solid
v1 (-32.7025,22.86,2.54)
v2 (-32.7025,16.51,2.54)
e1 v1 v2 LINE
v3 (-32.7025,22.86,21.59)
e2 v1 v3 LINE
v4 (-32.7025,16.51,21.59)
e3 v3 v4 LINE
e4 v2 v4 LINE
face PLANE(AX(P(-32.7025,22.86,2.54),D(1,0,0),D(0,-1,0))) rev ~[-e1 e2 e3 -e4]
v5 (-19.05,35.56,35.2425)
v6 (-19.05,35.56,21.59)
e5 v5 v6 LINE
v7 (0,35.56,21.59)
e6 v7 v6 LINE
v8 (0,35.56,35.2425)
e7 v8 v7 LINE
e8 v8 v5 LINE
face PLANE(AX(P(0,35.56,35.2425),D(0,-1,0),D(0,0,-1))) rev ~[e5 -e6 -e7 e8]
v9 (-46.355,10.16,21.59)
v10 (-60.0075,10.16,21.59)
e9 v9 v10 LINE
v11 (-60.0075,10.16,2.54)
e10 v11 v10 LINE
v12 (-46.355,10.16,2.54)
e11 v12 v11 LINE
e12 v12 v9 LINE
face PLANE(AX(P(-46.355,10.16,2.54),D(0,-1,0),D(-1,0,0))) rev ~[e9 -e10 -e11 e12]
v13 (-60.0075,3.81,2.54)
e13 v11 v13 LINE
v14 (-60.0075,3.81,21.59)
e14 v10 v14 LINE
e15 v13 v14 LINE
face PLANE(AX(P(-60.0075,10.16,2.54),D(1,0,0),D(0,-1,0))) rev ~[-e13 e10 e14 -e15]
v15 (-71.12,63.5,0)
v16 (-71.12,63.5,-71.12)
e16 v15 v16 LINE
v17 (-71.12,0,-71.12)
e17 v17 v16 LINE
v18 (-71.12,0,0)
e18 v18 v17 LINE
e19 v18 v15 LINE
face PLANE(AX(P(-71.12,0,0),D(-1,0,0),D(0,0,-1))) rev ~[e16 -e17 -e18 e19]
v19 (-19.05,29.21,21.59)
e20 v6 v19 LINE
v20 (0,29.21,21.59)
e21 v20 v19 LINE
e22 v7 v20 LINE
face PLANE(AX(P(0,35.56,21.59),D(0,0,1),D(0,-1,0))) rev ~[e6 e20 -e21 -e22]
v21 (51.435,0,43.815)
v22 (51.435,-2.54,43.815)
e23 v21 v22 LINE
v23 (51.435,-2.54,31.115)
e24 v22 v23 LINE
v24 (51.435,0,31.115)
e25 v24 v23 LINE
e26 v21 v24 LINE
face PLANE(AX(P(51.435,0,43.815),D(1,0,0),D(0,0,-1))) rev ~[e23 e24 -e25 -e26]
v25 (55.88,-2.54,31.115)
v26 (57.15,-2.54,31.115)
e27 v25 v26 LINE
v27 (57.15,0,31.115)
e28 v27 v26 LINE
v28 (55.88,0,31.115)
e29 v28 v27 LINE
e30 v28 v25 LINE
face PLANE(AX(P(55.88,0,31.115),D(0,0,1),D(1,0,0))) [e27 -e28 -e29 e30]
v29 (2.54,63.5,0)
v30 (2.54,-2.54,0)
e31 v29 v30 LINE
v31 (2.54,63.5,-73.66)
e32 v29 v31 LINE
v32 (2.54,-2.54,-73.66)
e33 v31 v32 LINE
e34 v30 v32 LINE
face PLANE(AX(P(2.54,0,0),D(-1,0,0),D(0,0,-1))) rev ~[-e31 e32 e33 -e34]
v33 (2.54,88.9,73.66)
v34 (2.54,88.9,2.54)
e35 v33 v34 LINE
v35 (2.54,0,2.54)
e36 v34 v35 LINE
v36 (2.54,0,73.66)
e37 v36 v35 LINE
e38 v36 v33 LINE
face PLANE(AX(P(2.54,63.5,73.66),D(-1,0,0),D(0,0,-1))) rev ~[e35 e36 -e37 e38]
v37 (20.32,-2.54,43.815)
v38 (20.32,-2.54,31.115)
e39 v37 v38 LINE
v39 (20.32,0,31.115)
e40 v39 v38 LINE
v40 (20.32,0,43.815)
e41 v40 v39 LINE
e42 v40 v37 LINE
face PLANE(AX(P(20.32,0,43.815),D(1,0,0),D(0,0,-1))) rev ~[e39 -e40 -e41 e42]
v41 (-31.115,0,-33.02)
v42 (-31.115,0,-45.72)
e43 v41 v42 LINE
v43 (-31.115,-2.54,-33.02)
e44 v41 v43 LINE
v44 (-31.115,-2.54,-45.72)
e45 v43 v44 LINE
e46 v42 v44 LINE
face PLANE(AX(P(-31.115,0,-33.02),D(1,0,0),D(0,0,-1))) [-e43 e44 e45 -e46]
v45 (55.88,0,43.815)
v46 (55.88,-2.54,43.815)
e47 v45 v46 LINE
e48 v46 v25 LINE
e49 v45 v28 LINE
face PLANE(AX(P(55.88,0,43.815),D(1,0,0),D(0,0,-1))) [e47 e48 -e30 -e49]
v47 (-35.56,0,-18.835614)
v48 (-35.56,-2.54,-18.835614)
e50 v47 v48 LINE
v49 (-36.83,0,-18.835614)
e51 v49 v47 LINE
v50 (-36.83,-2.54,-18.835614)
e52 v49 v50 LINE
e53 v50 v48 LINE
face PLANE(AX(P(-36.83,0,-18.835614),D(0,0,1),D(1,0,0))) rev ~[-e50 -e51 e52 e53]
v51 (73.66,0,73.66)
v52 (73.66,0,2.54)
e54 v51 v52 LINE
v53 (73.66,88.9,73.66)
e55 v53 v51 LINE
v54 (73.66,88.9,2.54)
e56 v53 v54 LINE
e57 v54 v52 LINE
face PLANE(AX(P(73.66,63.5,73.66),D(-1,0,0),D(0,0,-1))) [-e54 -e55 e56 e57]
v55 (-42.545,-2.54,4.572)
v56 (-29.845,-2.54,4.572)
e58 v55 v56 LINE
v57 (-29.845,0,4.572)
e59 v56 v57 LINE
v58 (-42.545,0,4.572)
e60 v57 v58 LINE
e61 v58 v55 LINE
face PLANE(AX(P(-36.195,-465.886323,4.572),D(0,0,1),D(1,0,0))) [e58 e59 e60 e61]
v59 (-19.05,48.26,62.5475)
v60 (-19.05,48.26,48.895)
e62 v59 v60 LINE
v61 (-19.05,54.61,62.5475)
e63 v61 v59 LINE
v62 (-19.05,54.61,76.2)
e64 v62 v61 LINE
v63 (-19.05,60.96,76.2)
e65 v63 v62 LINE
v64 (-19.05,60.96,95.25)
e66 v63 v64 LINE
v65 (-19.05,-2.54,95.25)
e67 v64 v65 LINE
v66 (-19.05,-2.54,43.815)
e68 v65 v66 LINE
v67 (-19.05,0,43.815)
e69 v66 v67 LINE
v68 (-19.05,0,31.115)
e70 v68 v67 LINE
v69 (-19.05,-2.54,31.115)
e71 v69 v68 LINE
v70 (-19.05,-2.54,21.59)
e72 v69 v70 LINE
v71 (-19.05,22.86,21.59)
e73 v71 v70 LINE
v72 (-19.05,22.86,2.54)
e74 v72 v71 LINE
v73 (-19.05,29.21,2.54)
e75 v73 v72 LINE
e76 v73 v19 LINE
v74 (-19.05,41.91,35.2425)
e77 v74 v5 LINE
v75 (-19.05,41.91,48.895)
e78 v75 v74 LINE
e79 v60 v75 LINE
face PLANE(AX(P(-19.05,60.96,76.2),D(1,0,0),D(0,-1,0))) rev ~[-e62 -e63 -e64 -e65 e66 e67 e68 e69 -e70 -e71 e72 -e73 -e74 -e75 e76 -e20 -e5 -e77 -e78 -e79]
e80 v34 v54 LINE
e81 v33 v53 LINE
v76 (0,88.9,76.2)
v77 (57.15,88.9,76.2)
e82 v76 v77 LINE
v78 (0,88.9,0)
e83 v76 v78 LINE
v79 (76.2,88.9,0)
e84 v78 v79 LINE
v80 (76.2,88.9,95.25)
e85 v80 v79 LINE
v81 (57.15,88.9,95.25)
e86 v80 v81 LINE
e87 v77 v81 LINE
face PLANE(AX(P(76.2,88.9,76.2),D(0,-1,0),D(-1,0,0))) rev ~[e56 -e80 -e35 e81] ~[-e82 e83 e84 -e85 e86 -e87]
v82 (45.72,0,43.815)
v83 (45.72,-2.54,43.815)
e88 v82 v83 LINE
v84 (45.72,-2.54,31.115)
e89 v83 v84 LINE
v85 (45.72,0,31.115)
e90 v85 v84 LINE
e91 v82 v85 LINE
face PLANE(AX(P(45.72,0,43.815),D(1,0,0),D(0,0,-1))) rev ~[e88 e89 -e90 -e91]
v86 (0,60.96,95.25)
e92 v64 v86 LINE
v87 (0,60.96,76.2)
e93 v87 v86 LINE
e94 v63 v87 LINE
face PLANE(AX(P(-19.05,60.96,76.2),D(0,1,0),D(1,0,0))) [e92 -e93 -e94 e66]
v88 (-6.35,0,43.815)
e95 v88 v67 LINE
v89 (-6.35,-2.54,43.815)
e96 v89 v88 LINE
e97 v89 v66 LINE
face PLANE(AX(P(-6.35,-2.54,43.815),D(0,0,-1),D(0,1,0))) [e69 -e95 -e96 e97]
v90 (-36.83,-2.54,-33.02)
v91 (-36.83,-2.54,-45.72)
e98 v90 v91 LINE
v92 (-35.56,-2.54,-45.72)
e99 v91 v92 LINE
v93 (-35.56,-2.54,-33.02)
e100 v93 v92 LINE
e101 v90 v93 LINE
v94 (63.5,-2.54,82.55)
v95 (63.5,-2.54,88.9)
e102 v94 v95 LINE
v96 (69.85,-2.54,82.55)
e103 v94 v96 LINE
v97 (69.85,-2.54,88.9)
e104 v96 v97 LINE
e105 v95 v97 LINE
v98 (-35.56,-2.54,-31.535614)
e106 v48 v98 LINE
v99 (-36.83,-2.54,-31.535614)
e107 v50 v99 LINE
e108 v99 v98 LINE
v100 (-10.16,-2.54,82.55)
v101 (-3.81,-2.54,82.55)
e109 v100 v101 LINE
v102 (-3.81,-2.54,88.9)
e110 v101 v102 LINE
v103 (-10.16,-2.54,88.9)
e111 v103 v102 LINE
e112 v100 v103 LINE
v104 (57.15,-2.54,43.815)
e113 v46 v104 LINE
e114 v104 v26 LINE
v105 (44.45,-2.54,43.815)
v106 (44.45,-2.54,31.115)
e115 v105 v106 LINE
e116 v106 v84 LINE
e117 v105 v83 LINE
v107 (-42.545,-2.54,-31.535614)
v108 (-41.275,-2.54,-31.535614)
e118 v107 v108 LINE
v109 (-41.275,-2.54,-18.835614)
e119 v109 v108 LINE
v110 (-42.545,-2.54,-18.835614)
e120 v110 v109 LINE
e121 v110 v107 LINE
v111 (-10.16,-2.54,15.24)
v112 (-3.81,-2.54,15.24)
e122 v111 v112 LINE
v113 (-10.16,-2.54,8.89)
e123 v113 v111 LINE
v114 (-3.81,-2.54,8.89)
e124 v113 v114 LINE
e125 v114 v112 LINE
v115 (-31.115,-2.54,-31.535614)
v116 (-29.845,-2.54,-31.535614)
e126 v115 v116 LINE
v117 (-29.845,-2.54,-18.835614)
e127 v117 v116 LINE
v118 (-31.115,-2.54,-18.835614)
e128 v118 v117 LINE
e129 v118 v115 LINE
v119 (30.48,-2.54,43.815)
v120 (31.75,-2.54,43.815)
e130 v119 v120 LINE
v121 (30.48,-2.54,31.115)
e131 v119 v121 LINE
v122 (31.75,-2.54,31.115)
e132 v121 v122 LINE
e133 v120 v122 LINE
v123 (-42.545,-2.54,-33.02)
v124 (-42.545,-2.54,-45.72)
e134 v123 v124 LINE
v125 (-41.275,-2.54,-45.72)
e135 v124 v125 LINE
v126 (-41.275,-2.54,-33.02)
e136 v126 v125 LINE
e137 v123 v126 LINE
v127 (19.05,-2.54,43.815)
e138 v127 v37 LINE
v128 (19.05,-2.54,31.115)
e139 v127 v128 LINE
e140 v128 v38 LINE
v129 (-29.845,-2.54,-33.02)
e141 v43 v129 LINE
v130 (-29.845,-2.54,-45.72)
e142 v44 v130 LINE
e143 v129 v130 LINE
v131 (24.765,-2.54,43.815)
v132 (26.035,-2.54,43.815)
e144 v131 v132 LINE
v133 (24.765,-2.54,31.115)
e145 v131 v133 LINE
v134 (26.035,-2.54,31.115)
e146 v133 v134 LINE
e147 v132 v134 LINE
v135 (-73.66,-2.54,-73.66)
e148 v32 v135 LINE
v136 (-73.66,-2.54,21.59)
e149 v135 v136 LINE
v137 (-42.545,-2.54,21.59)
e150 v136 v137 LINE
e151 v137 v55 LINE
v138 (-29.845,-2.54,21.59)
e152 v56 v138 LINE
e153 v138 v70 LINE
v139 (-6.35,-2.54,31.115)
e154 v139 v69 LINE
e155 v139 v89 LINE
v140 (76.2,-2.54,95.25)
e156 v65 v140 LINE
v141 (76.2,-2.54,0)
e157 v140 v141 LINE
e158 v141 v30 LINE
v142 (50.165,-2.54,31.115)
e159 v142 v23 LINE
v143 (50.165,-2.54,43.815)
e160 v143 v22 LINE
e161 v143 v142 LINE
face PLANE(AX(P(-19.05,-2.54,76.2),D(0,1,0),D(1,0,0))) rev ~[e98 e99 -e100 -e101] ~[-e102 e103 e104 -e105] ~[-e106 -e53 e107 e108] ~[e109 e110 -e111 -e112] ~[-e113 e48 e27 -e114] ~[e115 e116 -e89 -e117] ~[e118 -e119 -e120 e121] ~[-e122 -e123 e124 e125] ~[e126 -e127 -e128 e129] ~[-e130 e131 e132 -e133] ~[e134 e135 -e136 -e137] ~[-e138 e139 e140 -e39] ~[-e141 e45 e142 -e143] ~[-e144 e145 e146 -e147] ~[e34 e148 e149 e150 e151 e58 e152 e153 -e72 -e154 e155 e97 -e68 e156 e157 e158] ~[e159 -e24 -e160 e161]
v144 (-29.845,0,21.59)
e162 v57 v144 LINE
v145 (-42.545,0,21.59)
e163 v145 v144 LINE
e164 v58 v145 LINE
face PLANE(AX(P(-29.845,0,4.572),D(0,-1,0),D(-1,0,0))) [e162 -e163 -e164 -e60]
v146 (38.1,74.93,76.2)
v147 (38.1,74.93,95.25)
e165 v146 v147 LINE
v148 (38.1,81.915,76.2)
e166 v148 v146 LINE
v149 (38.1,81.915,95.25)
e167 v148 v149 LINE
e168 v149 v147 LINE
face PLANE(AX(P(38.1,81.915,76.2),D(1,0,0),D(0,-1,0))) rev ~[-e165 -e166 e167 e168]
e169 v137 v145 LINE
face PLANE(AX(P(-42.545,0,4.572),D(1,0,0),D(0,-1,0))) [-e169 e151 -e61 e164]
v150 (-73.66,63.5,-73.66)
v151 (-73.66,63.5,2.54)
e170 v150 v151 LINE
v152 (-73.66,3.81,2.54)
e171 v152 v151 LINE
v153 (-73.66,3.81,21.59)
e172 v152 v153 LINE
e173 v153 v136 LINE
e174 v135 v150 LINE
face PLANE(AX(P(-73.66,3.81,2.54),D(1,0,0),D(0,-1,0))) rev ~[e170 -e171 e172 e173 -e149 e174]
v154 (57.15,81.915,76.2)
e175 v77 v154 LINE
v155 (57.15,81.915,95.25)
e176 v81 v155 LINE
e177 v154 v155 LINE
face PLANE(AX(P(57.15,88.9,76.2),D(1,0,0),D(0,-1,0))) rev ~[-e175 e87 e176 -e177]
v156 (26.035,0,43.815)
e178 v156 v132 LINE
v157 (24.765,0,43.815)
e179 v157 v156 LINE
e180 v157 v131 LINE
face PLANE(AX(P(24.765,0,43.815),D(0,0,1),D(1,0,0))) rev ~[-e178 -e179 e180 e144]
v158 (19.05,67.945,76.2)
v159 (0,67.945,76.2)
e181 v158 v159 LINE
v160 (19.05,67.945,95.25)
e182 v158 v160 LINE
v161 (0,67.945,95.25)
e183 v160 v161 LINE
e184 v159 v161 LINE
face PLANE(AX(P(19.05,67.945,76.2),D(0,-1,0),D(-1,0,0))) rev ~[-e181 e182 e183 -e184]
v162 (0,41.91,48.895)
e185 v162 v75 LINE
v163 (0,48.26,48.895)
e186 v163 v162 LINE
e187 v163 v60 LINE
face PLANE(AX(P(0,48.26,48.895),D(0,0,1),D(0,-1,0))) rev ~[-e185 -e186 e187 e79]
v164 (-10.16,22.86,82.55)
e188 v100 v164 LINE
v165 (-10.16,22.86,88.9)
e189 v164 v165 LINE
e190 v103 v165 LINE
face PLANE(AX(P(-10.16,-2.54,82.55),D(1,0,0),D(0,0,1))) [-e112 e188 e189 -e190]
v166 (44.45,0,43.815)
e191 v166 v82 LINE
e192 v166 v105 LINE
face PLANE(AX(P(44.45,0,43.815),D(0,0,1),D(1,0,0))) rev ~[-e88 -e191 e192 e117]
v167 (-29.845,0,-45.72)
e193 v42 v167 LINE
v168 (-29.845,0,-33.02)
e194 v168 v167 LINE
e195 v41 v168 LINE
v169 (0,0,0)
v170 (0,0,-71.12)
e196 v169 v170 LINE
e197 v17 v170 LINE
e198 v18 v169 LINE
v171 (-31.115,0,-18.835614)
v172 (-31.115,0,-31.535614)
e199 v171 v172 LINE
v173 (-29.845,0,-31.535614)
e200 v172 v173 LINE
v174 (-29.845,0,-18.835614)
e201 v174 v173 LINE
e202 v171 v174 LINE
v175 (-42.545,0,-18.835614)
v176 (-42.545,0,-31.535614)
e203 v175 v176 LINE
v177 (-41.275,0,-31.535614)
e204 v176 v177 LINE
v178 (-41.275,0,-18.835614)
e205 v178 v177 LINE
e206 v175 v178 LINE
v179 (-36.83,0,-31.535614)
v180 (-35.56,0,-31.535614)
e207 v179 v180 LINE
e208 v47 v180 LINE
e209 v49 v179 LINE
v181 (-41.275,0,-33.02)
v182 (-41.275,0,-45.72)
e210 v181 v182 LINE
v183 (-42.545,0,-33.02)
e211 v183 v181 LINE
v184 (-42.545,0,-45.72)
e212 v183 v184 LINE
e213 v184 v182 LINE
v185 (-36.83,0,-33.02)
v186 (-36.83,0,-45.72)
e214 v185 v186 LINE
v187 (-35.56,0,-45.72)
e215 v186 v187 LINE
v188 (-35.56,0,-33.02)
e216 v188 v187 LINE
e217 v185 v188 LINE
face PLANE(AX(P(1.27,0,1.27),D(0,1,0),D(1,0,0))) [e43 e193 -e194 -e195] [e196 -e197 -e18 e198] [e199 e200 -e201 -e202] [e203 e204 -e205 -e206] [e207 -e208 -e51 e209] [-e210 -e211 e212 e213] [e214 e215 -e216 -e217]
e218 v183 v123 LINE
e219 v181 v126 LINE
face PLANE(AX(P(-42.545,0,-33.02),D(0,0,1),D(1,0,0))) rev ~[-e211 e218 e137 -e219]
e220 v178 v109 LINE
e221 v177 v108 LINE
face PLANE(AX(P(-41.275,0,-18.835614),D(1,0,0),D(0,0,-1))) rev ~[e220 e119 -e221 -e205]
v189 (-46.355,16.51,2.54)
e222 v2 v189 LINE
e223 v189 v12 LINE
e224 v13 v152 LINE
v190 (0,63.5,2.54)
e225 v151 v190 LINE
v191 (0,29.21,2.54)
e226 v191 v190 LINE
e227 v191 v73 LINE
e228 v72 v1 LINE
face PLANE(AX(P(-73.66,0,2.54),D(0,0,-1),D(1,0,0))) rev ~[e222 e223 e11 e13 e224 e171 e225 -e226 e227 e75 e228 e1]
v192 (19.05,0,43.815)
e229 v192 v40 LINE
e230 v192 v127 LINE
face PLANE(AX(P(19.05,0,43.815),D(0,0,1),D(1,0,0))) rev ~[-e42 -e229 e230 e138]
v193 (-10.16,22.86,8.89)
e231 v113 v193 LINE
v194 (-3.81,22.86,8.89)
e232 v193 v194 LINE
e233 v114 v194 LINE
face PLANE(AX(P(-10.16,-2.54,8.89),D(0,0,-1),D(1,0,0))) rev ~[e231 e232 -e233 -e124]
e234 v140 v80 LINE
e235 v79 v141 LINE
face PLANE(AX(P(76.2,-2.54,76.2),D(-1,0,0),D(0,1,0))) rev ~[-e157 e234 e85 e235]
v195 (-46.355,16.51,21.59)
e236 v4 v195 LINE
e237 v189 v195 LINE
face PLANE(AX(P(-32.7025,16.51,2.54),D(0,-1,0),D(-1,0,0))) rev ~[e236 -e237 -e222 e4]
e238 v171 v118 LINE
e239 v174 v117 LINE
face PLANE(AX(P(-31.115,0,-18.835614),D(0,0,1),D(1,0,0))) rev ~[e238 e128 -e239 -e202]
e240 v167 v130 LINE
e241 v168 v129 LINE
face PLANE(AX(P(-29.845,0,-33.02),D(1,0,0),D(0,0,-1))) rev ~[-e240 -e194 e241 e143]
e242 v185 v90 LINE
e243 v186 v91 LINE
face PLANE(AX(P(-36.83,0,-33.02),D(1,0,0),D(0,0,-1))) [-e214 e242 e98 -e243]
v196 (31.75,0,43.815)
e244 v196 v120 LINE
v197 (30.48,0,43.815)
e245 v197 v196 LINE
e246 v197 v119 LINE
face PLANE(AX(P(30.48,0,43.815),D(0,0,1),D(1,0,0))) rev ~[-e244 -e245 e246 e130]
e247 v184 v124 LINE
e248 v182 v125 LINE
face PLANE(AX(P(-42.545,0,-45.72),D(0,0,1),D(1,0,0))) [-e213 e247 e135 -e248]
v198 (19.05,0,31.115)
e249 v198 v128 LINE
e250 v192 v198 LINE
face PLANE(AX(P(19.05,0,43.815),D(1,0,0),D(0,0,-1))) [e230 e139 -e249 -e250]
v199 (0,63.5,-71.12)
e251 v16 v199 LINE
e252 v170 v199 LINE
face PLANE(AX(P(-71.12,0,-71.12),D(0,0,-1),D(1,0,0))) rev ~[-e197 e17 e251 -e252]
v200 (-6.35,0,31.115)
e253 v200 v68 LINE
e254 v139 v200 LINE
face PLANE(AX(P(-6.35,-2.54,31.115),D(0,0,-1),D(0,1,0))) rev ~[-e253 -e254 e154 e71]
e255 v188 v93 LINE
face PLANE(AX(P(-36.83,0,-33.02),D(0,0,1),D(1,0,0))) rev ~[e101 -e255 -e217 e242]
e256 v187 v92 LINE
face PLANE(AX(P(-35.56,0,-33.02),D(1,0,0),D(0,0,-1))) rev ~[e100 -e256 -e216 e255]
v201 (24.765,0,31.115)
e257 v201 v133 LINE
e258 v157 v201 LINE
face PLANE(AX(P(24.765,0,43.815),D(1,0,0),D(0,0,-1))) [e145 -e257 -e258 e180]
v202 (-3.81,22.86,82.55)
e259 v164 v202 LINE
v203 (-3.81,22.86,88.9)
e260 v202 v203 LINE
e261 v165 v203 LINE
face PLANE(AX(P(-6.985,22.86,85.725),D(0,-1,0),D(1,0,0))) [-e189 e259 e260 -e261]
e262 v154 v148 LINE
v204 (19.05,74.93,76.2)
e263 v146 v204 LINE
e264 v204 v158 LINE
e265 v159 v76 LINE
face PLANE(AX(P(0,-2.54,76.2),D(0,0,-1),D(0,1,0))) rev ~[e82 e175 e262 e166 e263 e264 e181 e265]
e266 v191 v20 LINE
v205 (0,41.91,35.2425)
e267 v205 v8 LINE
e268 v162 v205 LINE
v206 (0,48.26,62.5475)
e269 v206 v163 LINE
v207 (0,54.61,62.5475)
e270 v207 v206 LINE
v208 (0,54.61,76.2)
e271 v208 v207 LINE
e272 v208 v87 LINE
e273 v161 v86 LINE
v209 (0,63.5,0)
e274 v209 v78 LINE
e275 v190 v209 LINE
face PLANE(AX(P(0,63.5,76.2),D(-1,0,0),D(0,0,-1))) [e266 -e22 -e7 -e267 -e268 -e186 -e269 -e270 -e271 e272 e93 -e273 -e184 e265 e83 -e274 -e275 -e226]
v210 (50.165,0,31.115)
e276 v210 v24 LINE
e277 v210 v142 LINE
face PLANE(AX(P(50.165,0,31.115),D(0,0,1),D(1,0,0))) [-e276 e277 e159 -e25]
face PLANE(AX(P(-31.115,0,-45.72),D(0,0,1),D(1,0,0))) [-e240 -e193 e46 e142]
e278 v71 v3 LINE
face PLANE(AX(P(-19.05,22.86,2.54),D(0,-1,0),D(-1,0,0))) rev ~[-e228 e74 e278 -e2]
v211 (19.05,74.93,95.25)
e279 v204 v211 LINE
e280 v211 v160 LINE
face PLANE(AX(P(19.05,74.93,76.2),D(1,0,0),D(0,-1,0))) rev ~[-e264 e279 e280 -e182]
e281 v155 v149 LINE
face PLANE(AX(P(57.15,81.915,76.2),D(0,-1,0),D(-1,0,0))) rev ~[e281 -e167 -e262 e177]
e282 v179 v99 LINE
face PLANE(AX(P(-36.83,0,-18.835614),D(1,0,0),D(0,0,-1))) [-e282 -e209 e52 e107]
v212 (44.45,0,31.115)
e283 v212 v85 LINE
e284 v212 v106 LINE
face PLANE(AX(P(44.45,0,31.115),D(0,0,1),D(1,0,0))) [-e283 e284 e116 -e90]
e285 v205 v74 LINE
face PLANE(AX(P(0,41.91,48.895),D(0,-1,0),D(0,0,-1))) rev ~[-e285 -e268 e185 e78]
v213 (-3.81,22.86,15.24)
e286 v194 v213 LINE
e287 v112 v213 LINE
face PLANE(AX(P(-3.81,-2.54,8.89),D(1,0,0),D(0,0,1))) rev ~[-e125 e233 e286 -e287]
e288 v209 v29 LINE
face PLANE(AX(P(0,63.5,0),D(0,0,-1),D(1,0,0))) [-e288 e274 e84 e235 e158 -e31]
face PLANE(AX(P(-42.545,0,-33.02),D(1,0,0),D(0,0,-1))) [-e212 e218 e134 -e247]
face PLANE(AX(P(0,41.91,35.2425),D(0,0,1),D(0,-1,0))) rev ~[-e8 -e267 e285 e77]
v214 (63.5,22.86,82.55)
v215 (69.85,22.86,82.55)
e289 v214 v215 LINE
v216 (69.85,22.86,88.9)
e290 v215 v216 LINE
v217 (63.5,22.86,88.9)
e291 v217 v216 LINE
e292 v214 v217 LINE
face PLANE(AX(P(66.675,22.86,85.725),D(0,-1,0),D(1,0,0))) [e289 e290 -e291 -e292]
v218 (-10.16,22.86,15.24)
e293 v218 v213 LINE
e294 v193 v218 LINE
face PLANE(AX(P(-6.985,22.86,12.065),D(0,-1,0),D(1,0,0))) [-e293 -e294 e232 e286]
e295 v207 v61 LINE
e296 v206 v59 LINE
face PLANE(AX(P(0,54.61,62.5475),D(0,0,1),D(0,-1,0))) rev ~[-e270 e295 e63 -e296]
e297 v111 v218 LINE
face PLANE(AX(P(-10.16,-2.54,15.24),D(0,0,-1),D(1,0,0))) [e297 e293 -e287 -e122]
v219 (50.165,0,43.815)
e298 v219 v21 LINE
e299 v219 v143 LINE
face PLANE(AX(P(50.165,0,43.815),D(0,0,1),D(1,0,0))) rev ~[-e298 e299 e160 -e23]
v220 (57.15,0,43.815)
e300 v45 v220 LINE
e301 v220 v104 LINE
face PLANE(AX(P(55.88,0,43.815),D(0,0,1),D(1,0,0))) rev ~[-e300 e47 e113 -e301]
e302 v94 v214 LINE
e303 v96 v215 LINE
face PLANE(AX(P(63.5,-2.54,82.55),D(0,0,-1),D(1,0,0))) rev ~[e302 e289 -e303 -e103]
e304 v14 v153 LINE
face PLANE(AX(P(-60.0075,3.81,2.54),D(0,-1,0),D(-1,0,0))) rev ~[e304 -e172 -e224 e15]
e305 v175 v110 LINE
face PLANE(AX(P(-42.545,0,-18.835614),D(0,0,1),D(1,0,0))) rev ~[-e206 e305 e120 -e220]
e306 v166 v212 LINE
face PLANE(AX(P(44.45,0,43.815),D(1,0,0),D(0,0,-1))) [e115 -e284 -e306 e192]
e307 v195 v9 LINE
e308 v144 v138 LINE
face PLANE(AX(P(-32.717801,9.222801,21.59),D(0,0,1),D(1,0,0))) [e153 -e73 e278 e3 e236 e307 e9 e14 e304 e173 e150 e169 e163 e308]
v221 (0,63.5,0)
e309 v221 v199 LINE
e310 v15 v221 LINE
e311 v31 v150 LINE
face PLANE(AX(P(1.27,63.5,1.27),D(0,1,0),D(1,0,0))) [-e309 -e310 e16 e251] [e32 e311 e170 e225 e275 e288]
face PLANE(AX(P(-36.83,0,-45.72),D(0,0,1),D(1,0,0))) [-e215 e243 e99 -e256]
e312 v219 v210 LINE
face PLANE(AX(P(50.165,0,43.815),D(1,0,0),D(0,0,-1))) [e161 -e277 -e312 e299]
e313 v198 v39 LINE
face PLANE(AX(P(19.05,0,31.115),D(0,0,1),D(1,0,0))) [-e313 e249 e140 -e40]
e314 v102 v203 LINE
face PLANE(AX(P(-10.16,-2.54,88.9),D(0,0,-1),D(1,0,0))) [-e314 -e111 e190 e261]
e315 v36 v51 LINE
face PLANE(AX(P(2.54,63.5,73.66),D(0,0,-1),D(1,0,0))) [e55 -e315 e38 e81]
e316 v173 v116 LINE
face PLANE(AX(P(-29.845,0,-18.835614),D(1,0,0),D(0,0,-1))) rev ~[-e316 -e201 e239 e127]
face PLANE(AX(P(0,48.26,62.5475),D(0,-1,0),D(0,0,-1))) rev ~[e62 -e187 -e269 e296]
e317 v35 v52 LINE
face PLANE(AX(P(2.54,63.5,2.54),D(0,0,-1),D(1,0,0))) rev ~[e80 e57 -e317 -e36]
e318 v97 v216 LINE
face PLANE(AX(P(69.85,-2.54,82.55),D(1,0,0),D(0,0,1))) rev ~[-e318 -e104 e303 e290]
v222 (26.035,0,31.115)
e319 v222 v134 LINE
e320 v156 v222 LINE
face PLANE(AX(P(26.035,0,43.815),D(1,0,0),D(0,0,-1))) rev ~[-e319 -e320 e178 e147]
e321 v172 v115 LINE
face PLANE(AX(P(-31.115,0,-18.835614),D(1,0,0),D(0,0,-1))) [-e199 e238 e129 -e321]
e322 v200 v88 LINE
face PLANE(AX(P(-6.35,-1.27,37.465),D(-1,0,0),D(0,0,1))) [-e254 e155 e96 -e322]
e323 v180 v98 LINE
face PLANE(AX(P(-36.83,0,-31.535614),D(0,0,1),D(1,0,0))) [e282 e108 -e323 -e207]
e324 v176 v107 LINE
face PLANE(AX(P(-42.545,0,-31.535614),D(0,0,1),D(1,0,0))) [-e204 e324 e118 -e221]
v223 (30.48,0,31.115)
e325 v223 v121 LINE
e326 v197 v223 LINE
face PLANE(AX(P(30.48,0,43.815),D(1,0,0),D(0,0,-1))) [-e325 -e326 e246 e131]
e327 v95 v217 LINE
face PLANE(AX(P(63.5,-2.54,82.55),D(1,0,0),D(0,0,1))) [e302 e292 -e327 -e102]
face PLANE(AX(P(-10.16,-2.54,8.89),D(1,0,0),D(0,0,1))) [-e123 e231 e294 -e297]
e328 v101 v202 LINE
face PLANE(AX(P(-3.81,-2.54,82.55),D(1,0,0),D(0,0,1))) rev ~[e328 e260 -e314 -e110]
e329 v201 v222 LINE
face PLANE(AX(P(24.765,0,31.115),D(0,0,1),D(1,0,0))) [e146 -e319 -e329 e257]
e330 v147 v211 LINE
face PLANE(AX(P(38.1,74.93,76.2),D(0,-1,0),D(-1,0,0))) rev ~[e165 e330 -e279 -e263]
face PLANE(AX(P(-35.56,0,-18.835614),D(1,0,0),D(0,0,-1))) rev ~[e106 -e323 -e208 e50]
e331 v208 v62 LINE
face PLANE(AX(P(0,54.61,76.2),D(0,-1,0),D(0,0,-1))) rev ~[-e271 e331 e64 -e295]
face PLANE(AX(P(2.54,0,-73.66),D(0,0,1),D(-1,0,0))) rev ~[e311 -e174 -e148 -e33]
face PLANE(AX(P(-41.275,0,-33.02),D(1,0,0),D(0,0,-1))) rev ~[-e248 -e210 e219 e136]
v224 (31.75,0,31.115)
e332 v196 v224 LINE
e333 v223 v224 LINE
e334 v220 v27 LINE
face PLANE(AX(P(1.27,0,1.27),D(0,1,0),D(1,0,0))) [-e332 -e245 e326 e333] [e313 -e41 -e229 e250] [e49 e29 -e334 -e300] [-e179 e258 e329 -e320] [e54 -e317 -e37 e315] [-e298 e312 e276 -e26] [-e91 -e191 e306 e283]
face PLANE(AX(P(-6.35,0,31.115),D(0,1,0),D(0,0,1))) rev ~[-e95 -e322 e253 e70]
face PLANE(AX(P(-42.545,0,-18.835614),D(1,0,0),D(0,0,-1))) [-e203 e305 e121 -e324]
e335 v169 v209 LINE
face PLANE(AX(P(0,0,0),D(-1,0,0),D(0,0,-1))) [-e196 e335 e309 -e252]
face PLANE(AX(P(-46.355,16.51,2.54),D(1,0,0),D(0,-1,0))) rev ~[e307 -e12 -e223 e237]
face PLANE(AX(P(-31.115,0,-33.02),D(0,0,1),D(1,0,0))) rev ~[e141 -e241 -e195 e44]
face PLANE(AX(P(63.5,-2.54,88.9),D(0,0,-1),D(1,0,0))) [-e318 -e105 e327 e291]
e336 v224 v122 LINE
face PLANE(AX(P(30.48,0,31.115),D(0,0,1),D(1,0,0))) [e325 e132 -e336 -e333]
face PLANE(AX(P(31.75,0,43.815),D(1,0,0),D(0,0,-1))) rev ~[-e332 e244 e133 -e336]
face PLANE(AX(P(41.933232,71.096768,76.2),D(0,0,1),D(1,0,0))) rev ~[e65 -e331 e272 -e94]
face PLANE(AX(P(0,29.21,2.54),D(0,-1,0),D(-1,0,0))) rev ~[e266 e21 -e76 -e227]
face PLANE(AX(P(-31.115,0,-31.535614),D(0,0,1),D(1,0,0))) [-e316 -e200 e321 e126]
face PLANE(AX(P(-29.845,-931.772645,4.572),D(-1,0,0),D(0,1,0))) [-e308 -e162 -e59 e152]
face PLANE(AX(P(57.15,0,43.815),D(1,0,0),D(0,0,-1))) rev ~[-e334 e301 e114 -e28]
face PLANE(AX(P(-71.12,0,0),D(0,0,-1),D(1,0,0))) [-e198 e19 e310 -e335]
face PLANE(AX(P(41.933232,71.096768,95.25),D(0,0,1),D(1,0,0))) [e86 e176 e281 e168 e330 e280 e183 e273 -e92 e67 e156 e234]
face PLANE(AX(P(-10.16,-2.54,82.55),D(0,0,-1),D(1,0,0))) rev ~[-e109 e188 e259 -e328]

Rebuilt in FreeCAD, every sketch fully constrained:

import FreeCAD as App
import Part
import Sketcher
Q = App.Units.Quantity


def add_polygon(sketch, points):
    """Adds a closed chain of lines whose ends are joined by coincident constraints."""
    first, n = sketch.GeometryCount, len(points)
    for a, b in zip(points, points[1:] + points[:1]):
        sketch.addGeometry(Part.LineSegment(App.Vector(*a, 0), App.Vector(*b, 0)), False)
    for i in range(n):
        sketch.addConstraint(Sketcher.Constraint("Coincident", first + i, 2, first + (i + 1) % n, 1))

doc = App.newDocument("Part")
params = doc.addObject("Spreadsheet::Sheet", "Params")
for row, (alias, value) in enumerate([
    ("sketch1_width", "3 in"),
    ("sketch1_width2", "2.9 in"),
    ("pad1_length", "0.1 in"),
    ("sketch2_width", "3 in"),
    ("sketch2_width2", "2.9 in"),
    ("pad2_length", "2.5 in"),
    ("sketch3_width", "3 in"),
    ("sketch3_width2", "2.8 in"),
    ("pad3_length", "1 in"),
    ("sketch4_width", "2.9 in"),
    ("sketch4_width2", "0.75 in"),
    ("pad4_length", "0.75 in"),
    ("sketch5_width", "1.5 in"),
    ("sketch5_height", "2.15 in"),
    ("pad5_length", "0.75 in"),
    ("sketch6_height", "2.5 in"),
    ("sketch6_height2", "3.6 in"),
    ("pad6_length", "0.75 in"),
    ("sketch7_height", "0.5 in"),
    ("sketch7_width", "0.05 in"),
    ("sketch8_width", "0.25 in"),
    ("pocket2_length", "1 in"),
    ("sketch9_width", "0.5 in"),
    ("pocket3_length", "151.937777 mm"),
    ("pocket3_length2", "0.67 in"),
    ("sketch10_width", "0.1 in"),
    ("sketch10_height", "0.5 in"),
    ("pocket4_length", "162.394966 mm"),
    ("pocket4_length2", "0.5 in"),
], start=1):
    params.set(f"A{row}", alias)
    params.set(f"B{row}", "=" + value)
    params.setAlias(f"B{row}", alias)

body = doc.addObject("PartDesign::Body", "Body")

sketch1 = body.newObject("Sketcher::SketchObject", "Sketch")
sketch1.AttachmentSupport = (doc.getObject("XZ_Plane"), [""])
sketch1.MapMode = "FlatFace"
add_polygon(sketch1, [(-73.66, -73.66), (-73.66, 2.54), (0, 2.54), (0, 76.2), (76.2, 76.2), (76.2, 0), (2.54, 0), (2.54, -73.66)])
sketch1.addConstraint([
    Sketcher.Constraint("Vertical", 0),
    Sketcher.Constraint("Horizontal", 1),
    Sketcher.Constraint("Vertical", 2),
    Sketcher.Constraint("Horizontal", 3),
    Sketcher.Constraint("Vertical", 4),
    Sketcher.Constraint("Horizontal", 5),
    Sketcher.Constraint("Vertical", 6),
    Sketcher.Constraint("Horizontal", 7),
    Sketcher.Constraint("PointOnObject", 1, 2, -2),
    Sketcher.Constraint("PointOnObject", 4, 2, -1),
    Sketcher.Constraint("Equal", 1, 5),
    Sketcher.Constraint("Equal", 7, 0),
    Sketcher.Constraint("Equal", 5, 2),
    Sketcher.Constraint("Equal", 0, 4),
    Sketcher.Constraint("DistanceX", 3, 1, 3, 2, Q("3 in")),
    Sketcher.Constraint("DistanceX", 1, 1, 1, 2, Q("2.9 in")),
])
sketch1.setExpression("Constraints[22]", "Params.sketch1_width")
sketch1.setExpression("Constraints[23]", "Params.sketch1_width2")
pad1 = body.newObject("PartDesign::Pad", "Pad")
pad1.Profile = sketch1
pad1.setExpression("Length", "Params.pad1_length")

sketch2 = body.newObject("Sketcher::SketchObject", "Sketch001")
sketch2.AttachmentSupport = (doc.getObject("XZ_Plane"), [""])
sketch2.MapMode = "FlatFace"
add_polygon(sketch2, [(2.54, -73.66), (-73.66, -73.66), (-73.66, 2.54), (0, 2.54), (0, 76.2), (76.2, 76.2), (76.2, 0), (2.54, 0)])
add_polygon(sketch2, [(73.66, 73.66), (2.54, 73.66), (2.54, 2.54), (73.66, 2.54)])
add_polygon(sketch2, [(0, 0), (-71.12, 0), (-71.12, -71.12), (0, -71.12)])
sketch2.addConstraint([
    Sketcher.Constraint("Horizontal", 0),
    Sketcher.Constraint("Vertical", 1),
    Sketcher.Constraint("Horizontal", 2),
    Sketcher.Constraint("Vertical", 3),
    Sketcher.Constraint("Horizontal", 4),
    Sketcher.Constraint("Vertical", 5),
    Sketcher.Constraint("Horizontal", 6),
    Sketcher.Constraint("Vertical", 7),
    Sketcher.Constraint("Horizontal", 8),
    Sketcher.Constraint("Vertical", 9),
    Sketcher.Constraint("Horizontal", 10),
    Sketcher.Constraint("Vertical", 11),
    Sketcher.Constraint("Horizontal", 12),
    Sketcher.Constraint("Vertical", 13),
    Sketcher.Constraint("Horizontal", 14),
    Sketcher.Constraint("Vertical", 15),
    Sketcher.Constraint("Coincident", 15, 2, -1, 1),
    Sketcher.Constraint("Symmetric", 0, 2, 11, 2, -1, 1),
    Sketcher.Constraint("PointOnObject", 2, 2, -2),
    Sketcher.Constraint("PointOnObject", 5, 2, -1),
    Sketcher.Constraint("Horizontal", 2, 2, 9, 2),
    Sketcher.Constraint("Vertical", 7, 2, 8, 2),
    Sketcher.Constraint("Equal", 0, 4),
    Sketcher.Constraint("Equal", 10, 12),
    Sketcher.Constraint("Equal", 4, 1),
    Sketcher.Constraint("Equal", 6, 3),
    Sketcher.Constraint("Equal", 1, 5),
    Sketcher.Constraint("Equal", 11, 13),
    Sketcher.Constraint("DistanceX", 0, 2, 0, 1, Q("3 in")),
    Sketcher.Constraint("DistanceX", 2, 1, 2, 2, Q("2.9 in")),
])
sketch2.setExpression("Constraints[44]", "Params.sketch2_width")
sketch2.setExpression("Constraints[45]", "Params.sketch2_width2")
pad2 = body.newObject("PartDesign::Pad", "Pad001")
pad2.Profile = sketch2
pad2.setExpression("Length", "Params.pad2_length")
pad2.Reversed = True

sketch3 = body.newObject("Sketcher::SketchObject", "Sketch002")
sketch3.AttachmentSupport = (doc.getObject("XZ_Plane"), [""])
sketch3.MapMode = "FlatFace"
sketch3.AttachmentOffset = App.Placement(App.Vector(0, 0, -2.5 * 25.4), App.Rotation())
add_polygon(sketch3, [(0, 0), (0, 76.2), (76.2, 76.2), (76.2, 0)])
add_polygon(sketch3, [(73.66, 73.66), (2.54, 73.66), (2.54, 2.54), (73.66, 2.54)])
sketch3.addConstraint([
    Sketcher.Constraint("Vertical", 0),
    Sketcher.Constraint("Horizontal", 1),
    Sketcher.Constraint("Vertical", 2),
    Sketcher.Constraint("Horizontal", 3),
    Sketcher.Constraint("Horizontal", 4),
    Sketcher.Constraint("Vertical", 5),
    Sketcher.Constraint("Horizontal", 6),
    Sketcher.Constraint("Vertical", 7),
    Sketcher.Constraint("Coincident", 3, 2, -1, 1),
    Sketcher.Constraint("Equal", 3, 0),
    Sketcher.Constraint("Equal", 6, 5),
    Sketcher.Constraint("DistanceX", 1, 1, 1, 2, Q("3 in")),
    Sketcher.Constraint("DistanceX", 4, 2, 4, 1, Q("2.8 in")),
    Sketcher.Constraint("DistanceX", -1, 1, 4, 2, Q("0.1 in")),
    Sketcher.Constraint("DistanceY", -1, 1, 4, 2, Q("2.9 in")),
])
sketch3.setExpression("Constraints[19]", "Params.sketch3_width")
sketch3.setExpression("Constraints[20]", "Params.sketch3_width2")
pad3 = body.newObject("PartDesign::Pad", "Pad002")
pad3.Profile = sketch3
pad3.setExpression("Length", "Params.pad3_length")
pad3.Reversed = True

sketch4 = body.newObject("Sketcher::SketchObject", "Sketch003")
sketch4.AttachmentSupport = (doc.getObject("XY_Plane"), [""])
sketch4.MapMode = "FlatFace"
sketch4.AttachmentOffset = App.Placement(App.Vector(0, 0, 0.1 * 25.4), App.Rotation())
add_polygon(sketch4, [(-73.66, 3.81), (-73.66, -2.54), (0, -2.54), (0, 29.21), (-19.05, 29.21), (-19.05, 22.86), (-32.7025, 22.86), (-32.7025, 16.51), (-46.355, 16.51), (-46.355, 10.16), (-60.0075, 10.16), (-60.0075, 3.81)])
sketch4.addConstraint([
    Sketcher.Constraint("Vertical", 0),
    Sketcher.Constraint("Horizontal", 1),
    Sketcher.Constraint("Vertical", 2),
    Sketcher.Constraint("Horizontal", 3),
    Sketcher.Constraint("Vertical", 4),
    Sketcher.Constraint("Horizontal", 5),
    Sketcher.Constraint("Vertical", 6),
    Sketcher.Constraint("Horizontal", 7),
    Sketcher.Constraint("Vertical", 8),
    Sketcher.Constraint("Horizontal", 9),
    Sketcher.Constraint("Vertical", 10),
    Sketcher.Constraint("Horizontal", 11),
    Sketcher.Constraint("PointOnObject", 1, 2, -2),
    Sketcher.Constraint("Equal", 5, 7),
    Sketcher.Constraint("Equal", 7, 9),
    Sketcher.Constraint("Equal", 9, 11),
    Sketcher.Constraint("Equal", 0, 4),
    Sketcher.Constraint("Equal", 4, 6),
    Sketcher.Constraint("Equal", 6, 8),
    Sketcher.Constraint("Equal", 8, 10),
    Sketcher.Constraint("DistanceX", 1, 1, 1, 2, Q("2.9 in")),
    Sketcher.Constraint("DistanceY", 1, 2, 4, 2, Q("1 in")),
    Sketcher.Constraint("DistanceX", 3, 2, 3, 1, Q("0.75 in")),
    Sketcher.Constraint("DistanceY", 0, 2, -1, 1, Q("0.1 in")),
])
sketch4.setExpression("Constraints[32]", "Params.sketch4_width")
sketch4.setExpression("Constraints[34]", "Params.sketch4_width2")
pad4 = body.newObject("PartDesign::Pad", "Pad003")
pad4.Profile = sketch4
pad4.setExpression("Length", "Params.pad4_length")

sketch5 = body.newObject("Sketcher::SketchObject", "Sketch004")
sketch5.AttachmentSupport = (doc.getObject("YZ_Plane"), [""])
sketch5.MapMode = "FlatFace"
add_polygon(sketch5, [(-2.54, 21.59), (-2.54, 76.2), (54.61, 76.2), (54.61, 62.5475), (48.26, 62.5475), (48.26, 48.895), (41.91, 48.895), (41.91, 35.2425), (35.56, 35.2425), (35.56, 21.59)])
sketch5.addConstraint([
    Sketcher.Constraint("Vertical", 0),
    Sketcher.Constraint("Horizontal", 1),
    Sketcher.Constraint("Vertical", 2),
    Sketcher.Constraint("Horizontal", 3),
    Sketcher.Constraint("Vertical", 4),
    Sketcher.Constraint("Horizontal", 5),
    Sketcher.Constraint("Vertical", 6),
    Sketcher.Constraint("Horizontal", 7),
    Sketcher.Constraint("Vertical", 8),
    Sketcher.Constraint("Horizontal", 9),
    Sketcher.Constraint("Equal", 3, 5),
    Sketcher.Constraint("Equal", 5, 7),
    Sketcher.Constraint("Equal", 2, 4),
    Sketcher.Constraint("Equal", 4, 6),
    Sketcher.Constraint("Equal", 6, 8),
    Sketcher.Constraint("DistanceX", 9, 2, 9, 1, Q("1.5 in")),
    Sketcher.Constraint("DistanceY", -1, 1, 0, 2, Q("3 in")),
    Sketcher.Constraint("DistanceX", 0, 2, 3, 2, Q("2 in")),
    Sketcher.Constraint("DistanceY", 0, 1, 0, 2, Q("2.15 in")),
    Sketcher.Constraint("DistanceX", 0, 2, -1, 1, Q("0.1 in")),
])
sketch5.setExpression("Constraints[25]", "Params.sketch5_width")
sketch5.setExpression("Constraints[28]", "Params.sketch5_height")
pad5 = body.newObject("PartDesign::Pad", "Pad004")
pad5.Profile = sketch5
pad5.setExpression("Length", "Params.pad5_length")
pad5.Reversed = True

sketch6 = body.newObject("Sketcher::SketchObject", "Sketch005")
sketch6.AttachmentSupport = (doc.getObject("XY_Plane"), [""])
sketch6.MapMode = "FlatFace"
sketch6.AttachmentOffset = App.Placement(App.Vector(0, 0, 3 * 25.4), App.Rotation())
add_polygon(sketch6, [(76.2, 88.9), (57.15, 88.9), (57.15, 81.915), (38.1, 81.915), (38.1, 74.93), (19.05, 74.93), (19.05, 67.945), (0, 67.945), (0, 60.96), (-19.05, 60.96), (-19.05, -2.54), (76.2, -2.54)])
sketch6.addConstraint([
    Sketcher.Constraint("Horizontal", 0),
    Sketcher.Constraint("Vertical", 1),
    Sketcher.Constraint("Horizontal", 2),
    Sketcher.Constraint("Vertical", 3),
    Sketcher.Constraint("Horizontal", 4),
    Sketcher.Constraint("Vertical", 5),
    Sketcher.Constraint("Horizontal", 6),
    Sketcher.Constraint("Vertical", 7),
    Sketcher.Constraint("Horizontal", 8),
    Sketcher.Constraint("Vertical", 9),
    Sketcher.Constraint("Horizontal", 10),
    Sketcher.Constraint("Vertical", 11),
    Sketcher.Constraint("PointOnObject", 6, 2, -2),
    Sketcher.Constraint("Equal", 0, 2),
    Sketcher.Constraint("Equal", 2, 4),
    Sketcher.Constraint("Equal", 4, 6),
    Sketcher.Constraint("Equal", 6, 8),
    Sketcher.Constraint("Equal", 1, 3),
    Sketcher.Constraint("Equal", 3, 5),
    Sketcher.Constraint("Equal", 5, 7),
    Sketcher.Constraint("DistanceY", 9, 2, 9, 1, Q("2.5 in")),
    Sketcher.Constraint("DistanceY", 11, 1, 11, 2, Q("3.6 in")),
    Sketcher.Constraint("DistanceX", -1, 1, 10, 2, Q("3 in")),
    Sketcher.Constraint("DistanceY", -1, 1, 0, 2, Q("3.5 in")),
])
sketch6.setExpression("Constraints[32]", "Params.sketch6_height")
sketch6.setExpression("Constraints[33]", "Params.sketch6_height2")
pad6 = body.newObject("PartDesign::Pad", "Pad005")
pad6.Profile = sketch6
pad6.setExpression("Length", "Params.pad6_length")

sketch7 = body.newObject("Sketcher::SketchObject", "Sketch006")
sketch7.AttachmentSupport = (doc.getObject("XZ_Plane"), [""])
sketch7.MapMode = "FlatFace"
add_polygon(sketch7, [(-42.545, -31.535614), (-42.545, -18.835614), (-41.275, -18.835614), (-41.275, -31.535614)])
add_polygon(sketch7, [(-42.545, -45.72), (-42.545, -33.02), (-41.275, -33.02), (-41.275, -45.72)])
add_polygon(sketch7, [(-36.83, -45.72), (-36.83, -33.02), (-35.56, -33.02), (-35.56, -45.72)])
add_polygon(sketch7, [(-31.115, -45.72), (-31.115, -33.02), (-29.845, -33.02), (-29.845, -45.72)])
add_polygon(sketch7, [(-36.83, -31.535614), (-36.83, -18.835614), (-35.56, -18.835614), (-35.56, -31.535614)])
add_polygon(sketch7, [(-31.115, -31.535614), (-31.115, -18.835614), (-29.845, -18.835614), (-29.845, -31.535614)])
add_polygon(sketch7, [(19.05, 31.115), (19.05, 43.815), (20.32, 43.815), (20.32, 31.115)])
add_polygon(sketch7, [(24.765, 31.115), (24.765, 43.815), (26.035, 43.815), (26.035, 31.115)])
add_polygon(sketch7, [(30.48, 31.115), (30.48, 43.815), (31.75, 43.815), (31.75, 31.115)])
add_polygon(sketch7, [(44.45, 31.115), (44.45, 43.815), (45.72, 43.815), (45.72, 31.115)])
add_polygon(sketch7, [(50.165, 31.115), (50.165, 43.815), (51.435, 43.815), (51.435, 31.115)])
add_polygon(sketch7, [(55.88, 31.115), (55.88, 43.815), (57.15, 43.815), (57.15, 31.115)])
sketch7.addConstraint([
    Sketcher.Constraint("Vertical", 0),
    Sketcher.Constraint("Horizontal", 1),
    Sketcher.Constraint("Vertical", 2),
    Sketcher.Constraint("Horizontal", 3),
    Sketcher.Constraint("Vertical", 4),
    Sketcher.Constraint("Horizontal", 5),
    Sketcher.Constraint("Vertical", 6),
    Sketcher.Constraint("Horizontal", 7),
    Sketcher.Constraint("Vertical", 8),
    Sketcher.Constraint("Horizontal", 9),
    Sketcher.Constraint("Vertical", 10),
    Sketcher.Constraint("Horizontal", 11),
    Sketcher.Constraint("Vertical", 12),
    Sketcher.Constraint("Horizontal", 13),
    Sketcher.Constraint("Vertical", 14),
    Sketcher.Constraint("Horizontal", 15),
    Sketcher.Constraint("Vertical", 16),
    Sketcher.Constraint("Horizontal", 17),
    Sketcher.Constraint("Vertical", 18),
    Sketcher.Constraint("Horizontal", 19),
    Sketcher.Constraint("Vertical", 20),
    Sketcher.Constraint("Horizontal", 21),
    Sketcher.Constraint("Vertical", 22),
    Sketcher.Constraint("Horizontal", 23),
    Sketcher.Constraint("Vertical", 24),
    Sketcher.Constraint("Horizontal", 25),
    Sketcher.Constraint("Vertical", 26),
    Sketcher.Constraint("Horizontal", 27),
    Sketcher.Constraint("Vertical", 28),
    Sketcher.Constraint("Horizontal", 29),
    Sketcher.Constraint("Vertical", 30),
    Sketcher.Constraint("Horizontal", 31),
    Sketcher.Constraint("Vertical", 32),
    Sketcher.Constraint("Horizontal", 33),
    Sketcher.Constraint("Vertical", 34),
    Sketcher.Constraint("Horizontal", 35),
    Sketcher.Constraint("Vertical", 36),
    Sketcher.Constraint("Horizontal", 37),
    Sketcher.Constraint("Vertical", 38),
    Sketcher.Constraint("Horizontal", 39),
    Sketcher.Constraint("Vertical", 40),
    Sketcher.Constraint("Horizontal", 41),
    Sketcher.Constraint("Vertical", 42),
    Sketcher.Constraint("Horizontal", 43),
    Sketcher.Constraint("Vertical", 44),
    Sketcher.Constraint("Horizontal", 45),
    Sketcher.Constraint("Vertical", 46),
    Sketcher.Constraint("Horizontal", 47),
    Sketcher.Constraint("Horizontal", 5, 2, 8, 2),
    Sketcher.Constraint("Horizontal", 7, 2, 10, 2),
    Sketcher.Constraint("Horizontal", 9, 2, 12, 2),
    Sketcher.Constraint("Horizontal", 11, 2, 14, 2),
    Sketcher.Constraint("Horizontal", 1, 2, 16, 2),
    Sketcher.Constraint("Horizontal", 3, 2, 18, 2),
    Sketcher.Constraint("Horizontal", 17, 2, 20, 2),
    Sketcher.Constraint("Horizontal", 19, 2, 22, 2),
    Sketcher.Constraint("Horizontal", 25, 2, 28, 2),
    Sketcher.Constraint("Horizontal", 27, 2, 30, 2),
    Sketcher.Constraint("Horizontal", 29, 2, 32, 2),
    Sketcher.Constraint("Horizontal", 31, 2, 34, 2),
    Sketcher.Constraint("Horizontal", 33, 2, 36, 2),
    Sketcher.Constraint("Horizontal", 35, 2, 38, 2),
    Sketcher.Constraint("Horizontal", 37, 2, 40, 2),
    Sketcher.Constraint("Horizontal", 39, 2, 42, 2),
    Sketcher.Constraint("Horizontal", 41, 2, 44, 2),
    Sketcher.Constraint("Horizontal", 43, 2, 46, 2),
    Sketcher.Constraint("Vertical", 3, 2, 4, 2),
    Sketcher.Constraint("Vertical", 2, 2, 5, 2),
    Sketcher.Constraint("Vertical", 11, 2, 16, 2),
    Sketcher.Constraint("Vertical", 10, 2, 17, 2),
    Sketcher.Constraint("Vertical", 15, 2, 20, 2),
    Sketcher.Constraint("Vertical", 14, 2, 21, 2),
    Sketcher.Constraint("Equal", 7, 9),
    Sketcher.Constraint("Equal", 11, 13),
    Sketcher.Constraint("Equal", 23, 25),
    Sketcher.Constraint("Equal", 27, 29),
    Sketcher.Constraint("Equal", 31, 33),
    Sketcher.Constraint("Equal", 35, 37),
    Sketcher.Constraint("Equal", 39, 41),
    Sketcher.Constraint("Equal", 43, 45),
    Sketcher.Constraint("Equal", 2, 4),
    Sketcher.Constraint("Equal", 22, 24),
    Sketcher.Constraint("DistanceY", 0, 1, 0, 2, Q("0.5 in")),
    Sketcher.Constraint("DistanceX", 1, 1, 1, 2, Q("0.05 in")),
    Sketcher.Constraint("DistanceY", 4, 2, -1, 1, Q("1.3 in")),
    Sketcher.Constraint("DistanceX", 9, 2, -1, 1, Q("1.4 in")),
    Sketcher.Constraint("DistanceX", -1, 1, 25, 2, Q("0.8 in")),
    Sketcher.Constraint("DistanceX", -1, 1, 32, 2, Q("1.2 in")),
    Sketcher.Constraint("DistanceX", -1, 1, 37, 2, Q("1.8 in")),
    Sketcher.Constraint("DistanceX", -1, 1, 44, 2, Q("2.2 in")),
    Sketcher.Constraint("DistanceX", 5, 2, 12, 2, Q("0.4 in")),
    Sketcher.Constraint("DistanceX", 21, 2, 28, 2, Q("2.15 in")),
    Sketcher.Constraint("DistanceX", 0, 2, -1, 1, Q("1.675 in")),
    Sketcher.Constraint("DistanceY", -1, 1, 24, 2, Q("1.725 in")),
    Sketcher.Constraint("DistanceX", -1, 1, 40, 2, Q("1.975 in")),
    Sketcher.Constraint("DistanceY", 0, 2, -1, 1, Q("18.835614 mm")),
])
sketch7.setExpression("Constraints[130]", "Params.sketch7_height")
sketch7.setExpression("Constraints[131]", "Params.sketch7_width")
pocket1 = body.newObject("PartDesign::Pocket", "Pocket")
pocket1.Profile = sketch7
pocket1.Type = "ThroughAll"
pocket1.Reversed = True

sketch8 = body.newObject("Sketcher::SketchObject", "Sketch007")
sketch8.AttachmentSupport = (doc.getObject("XZ_Plane"), [""])
sketch8.MapMode = "FlatFace"
sketch8.AttachmentOffset = App.Placement(App.Vector(0, 0, 0.1 * 25.4), App.Rotation())
add_polygon(sketch8, [(-10.16, 15.24), (-10.16, 8.89), (-3.81, 8.89), (-3.81, 15.24)])
add_polygon(sketch8, [(-10.16, 88.9), (-10.16, 82.55), (-3.81, 82.55), (-3.81, 88.9)])
add_polygon(sketch8, [(63.5, 88.9), (63.5, 82.55), (69.85, 82.55), (69.85, 88.9)])
sketch8.addConstraint([
    Sketcher.Constraint("Vertical", 0),
    Sketcher.Constraint("Horizontal", 1),
    Sketcher.Constraint("Vertical", 2),
    Sketcher.Constraint("Horizontal", 3),
    Sketcher.Constraint("Vertical", 4),
    Sketcher.Constraint("Horizontal", 5),
    Sketcher.Constraint("Vertical", 6),
    Sketcher.Constraint("Horizontal", 7),
    Sketcher.Constraint("Vertical", 8),
    Sketcher.Constraint("Horizontal", 9),
    Sketcher.Constraint("Vertical", 10),
    Sketcher.Constraint("Horizontal", 11),
    Sketcher.Constraint("Horizontal", 5, 2, 8, 2),
    Sketcher.Constraint("Horizontal", 7, 2, 10, 2),
    Sketcher.Constraint("Vertical", 3, 2, 4, 2),
    Sketcher.Constraint("Vertical", 2, 2, 5, 2),
    Sketcher.Constraint("Equal", 7, 9),
    Sketcher.Constraint("Equal", 11, 0),
    Sketcher.Constraint("Equal", 2, 4),
    Sketcher.Constraint("DistanceX", 1, 1, 1, 2, Q("0.25 in")),
    Sketcher.Constraint("DistanceX", 0, 2, -1, 1, Q("0.4 in")),
    Sketcher.Constraint("DistanceY", -1, 1, 2, 2, Q("0.6 in")),
    Sketcher.Constraint("DistanceY", -1, 1, 6, 2, Q("3.5 in")),
    Sketcher.Constraint("DistanceX", -1, 1, 8, 2, Q("2.5 in")),
])
sketch8.setExpression("Constraints[31]", "Params.sketch8_width")
pocket2 = body.newObject("PartDesign::Pocket", "Pocket001")
pocket2.Profile = sketch8
pocket2.setExpression("Length", "Params.pocket2_length")

sketch9 = body.newObject("Sketcher::SketchObject", "Sketch008")
sketch9.AttachmentSupport = (doc.getObject("XY_Plane"), [""])
sketch9.MapMode = "FlatFace"
sketch9.AttachmentOffset = App.Placement(App.Vector(0, 0, 0.85 * 25.4), App.Rotation())
add_polygon(sketch9, [(-29.845, 0), (-42.545, 0), (-42.545, -931.772645), (-29.845, -931.772645)])
sketch9.addConstraint([
    Sketcher.Constraint("Horizontal", 0),
    Sketcher.Constraint("Vertical", 1),
    Sketcher.Constraint("Horizontal", 2),
    Sketcher.Constraint("Vertical", 3),
    Sketcher.Constraint("PointOnObject", 0, 2, -1),
    Sketcher.Constraint("DistanceX", 0, 2, 0, 1, Q("0.5 in")),
    Sketcher.Constraint("DistanceX", 0, 2, -1, 1, Q("1.675 in")),
    Sketcher.Constraint("DistanceY", 1, 2, 1, 1, Q("931.772645 mm")),
])
sketch9.setExpression("Constraints[9]", "Params.sketch9_width")
pocket3 = body.newObject("PartDesign::Pocket", "Pocket002")
pocket3.Profile = sketch9
pocket3.Type = "TwoLengths"
pocket3.setExpression("Length", "Params.pocket3_length")
pocket3.setExpression("Length2", "Params.pocket3_length2")
pocket3.Reversed = True

sketch10 = body.newObject("Sketcher::SketchObject", "Sketch009")
sketch10.AttachmentSupport = (doc.getObject("YZ_Plane"), [""])
sketch10.MapMode = "FlatFace"
sketch10.AttachmentOffset = App.Placement(App.Vector(0, 0, -0.75 * 25.4), App.Rotation())
add_polygon(sketch10, [(0, 31.115), (-2.54, 31.115), (-2.54, 43.815), (0, 43.815)])
sketch10.addConstraint([
    Sketcher.Constraint("Horizontal", 0),
    Sketcher.Constraint("Vertical", 1),
    Sketcher.Constraint("Horizontal", 2),
    Sketcher.Constraint("Vertical", 3),
    Sketcher.Constraint("PointOnObject", 2, 2, -2),
    Sketcher.Constraint("DistanceX", 0, 2, 0, 1, Q("0.1 in")),
    Sketcher.Constraint("DistanceY", 1, 1, 1, 2, Q("0.5 in")),
    Sketcher.Constraint("DistanceY", -1, 1, 0, 2, Q("1.225 in")),
])
sketch10.setExpression("Constraints[9]", "Params.sketch10_width")
sketch10.setExpression("Constraints[10]", "Params.sketch10_height")
pocket4 = body.newObject("PartDesign::Pocket", "Pocket003")
pocket4.Profile = sketch10
pocket4.Type = "TwoLengths"
pocket4.setExpression("Length", "Params.pocket4_length")
pocket4.setExpression("Length2", "Params.pocket4_length2")

doc.recompute()
